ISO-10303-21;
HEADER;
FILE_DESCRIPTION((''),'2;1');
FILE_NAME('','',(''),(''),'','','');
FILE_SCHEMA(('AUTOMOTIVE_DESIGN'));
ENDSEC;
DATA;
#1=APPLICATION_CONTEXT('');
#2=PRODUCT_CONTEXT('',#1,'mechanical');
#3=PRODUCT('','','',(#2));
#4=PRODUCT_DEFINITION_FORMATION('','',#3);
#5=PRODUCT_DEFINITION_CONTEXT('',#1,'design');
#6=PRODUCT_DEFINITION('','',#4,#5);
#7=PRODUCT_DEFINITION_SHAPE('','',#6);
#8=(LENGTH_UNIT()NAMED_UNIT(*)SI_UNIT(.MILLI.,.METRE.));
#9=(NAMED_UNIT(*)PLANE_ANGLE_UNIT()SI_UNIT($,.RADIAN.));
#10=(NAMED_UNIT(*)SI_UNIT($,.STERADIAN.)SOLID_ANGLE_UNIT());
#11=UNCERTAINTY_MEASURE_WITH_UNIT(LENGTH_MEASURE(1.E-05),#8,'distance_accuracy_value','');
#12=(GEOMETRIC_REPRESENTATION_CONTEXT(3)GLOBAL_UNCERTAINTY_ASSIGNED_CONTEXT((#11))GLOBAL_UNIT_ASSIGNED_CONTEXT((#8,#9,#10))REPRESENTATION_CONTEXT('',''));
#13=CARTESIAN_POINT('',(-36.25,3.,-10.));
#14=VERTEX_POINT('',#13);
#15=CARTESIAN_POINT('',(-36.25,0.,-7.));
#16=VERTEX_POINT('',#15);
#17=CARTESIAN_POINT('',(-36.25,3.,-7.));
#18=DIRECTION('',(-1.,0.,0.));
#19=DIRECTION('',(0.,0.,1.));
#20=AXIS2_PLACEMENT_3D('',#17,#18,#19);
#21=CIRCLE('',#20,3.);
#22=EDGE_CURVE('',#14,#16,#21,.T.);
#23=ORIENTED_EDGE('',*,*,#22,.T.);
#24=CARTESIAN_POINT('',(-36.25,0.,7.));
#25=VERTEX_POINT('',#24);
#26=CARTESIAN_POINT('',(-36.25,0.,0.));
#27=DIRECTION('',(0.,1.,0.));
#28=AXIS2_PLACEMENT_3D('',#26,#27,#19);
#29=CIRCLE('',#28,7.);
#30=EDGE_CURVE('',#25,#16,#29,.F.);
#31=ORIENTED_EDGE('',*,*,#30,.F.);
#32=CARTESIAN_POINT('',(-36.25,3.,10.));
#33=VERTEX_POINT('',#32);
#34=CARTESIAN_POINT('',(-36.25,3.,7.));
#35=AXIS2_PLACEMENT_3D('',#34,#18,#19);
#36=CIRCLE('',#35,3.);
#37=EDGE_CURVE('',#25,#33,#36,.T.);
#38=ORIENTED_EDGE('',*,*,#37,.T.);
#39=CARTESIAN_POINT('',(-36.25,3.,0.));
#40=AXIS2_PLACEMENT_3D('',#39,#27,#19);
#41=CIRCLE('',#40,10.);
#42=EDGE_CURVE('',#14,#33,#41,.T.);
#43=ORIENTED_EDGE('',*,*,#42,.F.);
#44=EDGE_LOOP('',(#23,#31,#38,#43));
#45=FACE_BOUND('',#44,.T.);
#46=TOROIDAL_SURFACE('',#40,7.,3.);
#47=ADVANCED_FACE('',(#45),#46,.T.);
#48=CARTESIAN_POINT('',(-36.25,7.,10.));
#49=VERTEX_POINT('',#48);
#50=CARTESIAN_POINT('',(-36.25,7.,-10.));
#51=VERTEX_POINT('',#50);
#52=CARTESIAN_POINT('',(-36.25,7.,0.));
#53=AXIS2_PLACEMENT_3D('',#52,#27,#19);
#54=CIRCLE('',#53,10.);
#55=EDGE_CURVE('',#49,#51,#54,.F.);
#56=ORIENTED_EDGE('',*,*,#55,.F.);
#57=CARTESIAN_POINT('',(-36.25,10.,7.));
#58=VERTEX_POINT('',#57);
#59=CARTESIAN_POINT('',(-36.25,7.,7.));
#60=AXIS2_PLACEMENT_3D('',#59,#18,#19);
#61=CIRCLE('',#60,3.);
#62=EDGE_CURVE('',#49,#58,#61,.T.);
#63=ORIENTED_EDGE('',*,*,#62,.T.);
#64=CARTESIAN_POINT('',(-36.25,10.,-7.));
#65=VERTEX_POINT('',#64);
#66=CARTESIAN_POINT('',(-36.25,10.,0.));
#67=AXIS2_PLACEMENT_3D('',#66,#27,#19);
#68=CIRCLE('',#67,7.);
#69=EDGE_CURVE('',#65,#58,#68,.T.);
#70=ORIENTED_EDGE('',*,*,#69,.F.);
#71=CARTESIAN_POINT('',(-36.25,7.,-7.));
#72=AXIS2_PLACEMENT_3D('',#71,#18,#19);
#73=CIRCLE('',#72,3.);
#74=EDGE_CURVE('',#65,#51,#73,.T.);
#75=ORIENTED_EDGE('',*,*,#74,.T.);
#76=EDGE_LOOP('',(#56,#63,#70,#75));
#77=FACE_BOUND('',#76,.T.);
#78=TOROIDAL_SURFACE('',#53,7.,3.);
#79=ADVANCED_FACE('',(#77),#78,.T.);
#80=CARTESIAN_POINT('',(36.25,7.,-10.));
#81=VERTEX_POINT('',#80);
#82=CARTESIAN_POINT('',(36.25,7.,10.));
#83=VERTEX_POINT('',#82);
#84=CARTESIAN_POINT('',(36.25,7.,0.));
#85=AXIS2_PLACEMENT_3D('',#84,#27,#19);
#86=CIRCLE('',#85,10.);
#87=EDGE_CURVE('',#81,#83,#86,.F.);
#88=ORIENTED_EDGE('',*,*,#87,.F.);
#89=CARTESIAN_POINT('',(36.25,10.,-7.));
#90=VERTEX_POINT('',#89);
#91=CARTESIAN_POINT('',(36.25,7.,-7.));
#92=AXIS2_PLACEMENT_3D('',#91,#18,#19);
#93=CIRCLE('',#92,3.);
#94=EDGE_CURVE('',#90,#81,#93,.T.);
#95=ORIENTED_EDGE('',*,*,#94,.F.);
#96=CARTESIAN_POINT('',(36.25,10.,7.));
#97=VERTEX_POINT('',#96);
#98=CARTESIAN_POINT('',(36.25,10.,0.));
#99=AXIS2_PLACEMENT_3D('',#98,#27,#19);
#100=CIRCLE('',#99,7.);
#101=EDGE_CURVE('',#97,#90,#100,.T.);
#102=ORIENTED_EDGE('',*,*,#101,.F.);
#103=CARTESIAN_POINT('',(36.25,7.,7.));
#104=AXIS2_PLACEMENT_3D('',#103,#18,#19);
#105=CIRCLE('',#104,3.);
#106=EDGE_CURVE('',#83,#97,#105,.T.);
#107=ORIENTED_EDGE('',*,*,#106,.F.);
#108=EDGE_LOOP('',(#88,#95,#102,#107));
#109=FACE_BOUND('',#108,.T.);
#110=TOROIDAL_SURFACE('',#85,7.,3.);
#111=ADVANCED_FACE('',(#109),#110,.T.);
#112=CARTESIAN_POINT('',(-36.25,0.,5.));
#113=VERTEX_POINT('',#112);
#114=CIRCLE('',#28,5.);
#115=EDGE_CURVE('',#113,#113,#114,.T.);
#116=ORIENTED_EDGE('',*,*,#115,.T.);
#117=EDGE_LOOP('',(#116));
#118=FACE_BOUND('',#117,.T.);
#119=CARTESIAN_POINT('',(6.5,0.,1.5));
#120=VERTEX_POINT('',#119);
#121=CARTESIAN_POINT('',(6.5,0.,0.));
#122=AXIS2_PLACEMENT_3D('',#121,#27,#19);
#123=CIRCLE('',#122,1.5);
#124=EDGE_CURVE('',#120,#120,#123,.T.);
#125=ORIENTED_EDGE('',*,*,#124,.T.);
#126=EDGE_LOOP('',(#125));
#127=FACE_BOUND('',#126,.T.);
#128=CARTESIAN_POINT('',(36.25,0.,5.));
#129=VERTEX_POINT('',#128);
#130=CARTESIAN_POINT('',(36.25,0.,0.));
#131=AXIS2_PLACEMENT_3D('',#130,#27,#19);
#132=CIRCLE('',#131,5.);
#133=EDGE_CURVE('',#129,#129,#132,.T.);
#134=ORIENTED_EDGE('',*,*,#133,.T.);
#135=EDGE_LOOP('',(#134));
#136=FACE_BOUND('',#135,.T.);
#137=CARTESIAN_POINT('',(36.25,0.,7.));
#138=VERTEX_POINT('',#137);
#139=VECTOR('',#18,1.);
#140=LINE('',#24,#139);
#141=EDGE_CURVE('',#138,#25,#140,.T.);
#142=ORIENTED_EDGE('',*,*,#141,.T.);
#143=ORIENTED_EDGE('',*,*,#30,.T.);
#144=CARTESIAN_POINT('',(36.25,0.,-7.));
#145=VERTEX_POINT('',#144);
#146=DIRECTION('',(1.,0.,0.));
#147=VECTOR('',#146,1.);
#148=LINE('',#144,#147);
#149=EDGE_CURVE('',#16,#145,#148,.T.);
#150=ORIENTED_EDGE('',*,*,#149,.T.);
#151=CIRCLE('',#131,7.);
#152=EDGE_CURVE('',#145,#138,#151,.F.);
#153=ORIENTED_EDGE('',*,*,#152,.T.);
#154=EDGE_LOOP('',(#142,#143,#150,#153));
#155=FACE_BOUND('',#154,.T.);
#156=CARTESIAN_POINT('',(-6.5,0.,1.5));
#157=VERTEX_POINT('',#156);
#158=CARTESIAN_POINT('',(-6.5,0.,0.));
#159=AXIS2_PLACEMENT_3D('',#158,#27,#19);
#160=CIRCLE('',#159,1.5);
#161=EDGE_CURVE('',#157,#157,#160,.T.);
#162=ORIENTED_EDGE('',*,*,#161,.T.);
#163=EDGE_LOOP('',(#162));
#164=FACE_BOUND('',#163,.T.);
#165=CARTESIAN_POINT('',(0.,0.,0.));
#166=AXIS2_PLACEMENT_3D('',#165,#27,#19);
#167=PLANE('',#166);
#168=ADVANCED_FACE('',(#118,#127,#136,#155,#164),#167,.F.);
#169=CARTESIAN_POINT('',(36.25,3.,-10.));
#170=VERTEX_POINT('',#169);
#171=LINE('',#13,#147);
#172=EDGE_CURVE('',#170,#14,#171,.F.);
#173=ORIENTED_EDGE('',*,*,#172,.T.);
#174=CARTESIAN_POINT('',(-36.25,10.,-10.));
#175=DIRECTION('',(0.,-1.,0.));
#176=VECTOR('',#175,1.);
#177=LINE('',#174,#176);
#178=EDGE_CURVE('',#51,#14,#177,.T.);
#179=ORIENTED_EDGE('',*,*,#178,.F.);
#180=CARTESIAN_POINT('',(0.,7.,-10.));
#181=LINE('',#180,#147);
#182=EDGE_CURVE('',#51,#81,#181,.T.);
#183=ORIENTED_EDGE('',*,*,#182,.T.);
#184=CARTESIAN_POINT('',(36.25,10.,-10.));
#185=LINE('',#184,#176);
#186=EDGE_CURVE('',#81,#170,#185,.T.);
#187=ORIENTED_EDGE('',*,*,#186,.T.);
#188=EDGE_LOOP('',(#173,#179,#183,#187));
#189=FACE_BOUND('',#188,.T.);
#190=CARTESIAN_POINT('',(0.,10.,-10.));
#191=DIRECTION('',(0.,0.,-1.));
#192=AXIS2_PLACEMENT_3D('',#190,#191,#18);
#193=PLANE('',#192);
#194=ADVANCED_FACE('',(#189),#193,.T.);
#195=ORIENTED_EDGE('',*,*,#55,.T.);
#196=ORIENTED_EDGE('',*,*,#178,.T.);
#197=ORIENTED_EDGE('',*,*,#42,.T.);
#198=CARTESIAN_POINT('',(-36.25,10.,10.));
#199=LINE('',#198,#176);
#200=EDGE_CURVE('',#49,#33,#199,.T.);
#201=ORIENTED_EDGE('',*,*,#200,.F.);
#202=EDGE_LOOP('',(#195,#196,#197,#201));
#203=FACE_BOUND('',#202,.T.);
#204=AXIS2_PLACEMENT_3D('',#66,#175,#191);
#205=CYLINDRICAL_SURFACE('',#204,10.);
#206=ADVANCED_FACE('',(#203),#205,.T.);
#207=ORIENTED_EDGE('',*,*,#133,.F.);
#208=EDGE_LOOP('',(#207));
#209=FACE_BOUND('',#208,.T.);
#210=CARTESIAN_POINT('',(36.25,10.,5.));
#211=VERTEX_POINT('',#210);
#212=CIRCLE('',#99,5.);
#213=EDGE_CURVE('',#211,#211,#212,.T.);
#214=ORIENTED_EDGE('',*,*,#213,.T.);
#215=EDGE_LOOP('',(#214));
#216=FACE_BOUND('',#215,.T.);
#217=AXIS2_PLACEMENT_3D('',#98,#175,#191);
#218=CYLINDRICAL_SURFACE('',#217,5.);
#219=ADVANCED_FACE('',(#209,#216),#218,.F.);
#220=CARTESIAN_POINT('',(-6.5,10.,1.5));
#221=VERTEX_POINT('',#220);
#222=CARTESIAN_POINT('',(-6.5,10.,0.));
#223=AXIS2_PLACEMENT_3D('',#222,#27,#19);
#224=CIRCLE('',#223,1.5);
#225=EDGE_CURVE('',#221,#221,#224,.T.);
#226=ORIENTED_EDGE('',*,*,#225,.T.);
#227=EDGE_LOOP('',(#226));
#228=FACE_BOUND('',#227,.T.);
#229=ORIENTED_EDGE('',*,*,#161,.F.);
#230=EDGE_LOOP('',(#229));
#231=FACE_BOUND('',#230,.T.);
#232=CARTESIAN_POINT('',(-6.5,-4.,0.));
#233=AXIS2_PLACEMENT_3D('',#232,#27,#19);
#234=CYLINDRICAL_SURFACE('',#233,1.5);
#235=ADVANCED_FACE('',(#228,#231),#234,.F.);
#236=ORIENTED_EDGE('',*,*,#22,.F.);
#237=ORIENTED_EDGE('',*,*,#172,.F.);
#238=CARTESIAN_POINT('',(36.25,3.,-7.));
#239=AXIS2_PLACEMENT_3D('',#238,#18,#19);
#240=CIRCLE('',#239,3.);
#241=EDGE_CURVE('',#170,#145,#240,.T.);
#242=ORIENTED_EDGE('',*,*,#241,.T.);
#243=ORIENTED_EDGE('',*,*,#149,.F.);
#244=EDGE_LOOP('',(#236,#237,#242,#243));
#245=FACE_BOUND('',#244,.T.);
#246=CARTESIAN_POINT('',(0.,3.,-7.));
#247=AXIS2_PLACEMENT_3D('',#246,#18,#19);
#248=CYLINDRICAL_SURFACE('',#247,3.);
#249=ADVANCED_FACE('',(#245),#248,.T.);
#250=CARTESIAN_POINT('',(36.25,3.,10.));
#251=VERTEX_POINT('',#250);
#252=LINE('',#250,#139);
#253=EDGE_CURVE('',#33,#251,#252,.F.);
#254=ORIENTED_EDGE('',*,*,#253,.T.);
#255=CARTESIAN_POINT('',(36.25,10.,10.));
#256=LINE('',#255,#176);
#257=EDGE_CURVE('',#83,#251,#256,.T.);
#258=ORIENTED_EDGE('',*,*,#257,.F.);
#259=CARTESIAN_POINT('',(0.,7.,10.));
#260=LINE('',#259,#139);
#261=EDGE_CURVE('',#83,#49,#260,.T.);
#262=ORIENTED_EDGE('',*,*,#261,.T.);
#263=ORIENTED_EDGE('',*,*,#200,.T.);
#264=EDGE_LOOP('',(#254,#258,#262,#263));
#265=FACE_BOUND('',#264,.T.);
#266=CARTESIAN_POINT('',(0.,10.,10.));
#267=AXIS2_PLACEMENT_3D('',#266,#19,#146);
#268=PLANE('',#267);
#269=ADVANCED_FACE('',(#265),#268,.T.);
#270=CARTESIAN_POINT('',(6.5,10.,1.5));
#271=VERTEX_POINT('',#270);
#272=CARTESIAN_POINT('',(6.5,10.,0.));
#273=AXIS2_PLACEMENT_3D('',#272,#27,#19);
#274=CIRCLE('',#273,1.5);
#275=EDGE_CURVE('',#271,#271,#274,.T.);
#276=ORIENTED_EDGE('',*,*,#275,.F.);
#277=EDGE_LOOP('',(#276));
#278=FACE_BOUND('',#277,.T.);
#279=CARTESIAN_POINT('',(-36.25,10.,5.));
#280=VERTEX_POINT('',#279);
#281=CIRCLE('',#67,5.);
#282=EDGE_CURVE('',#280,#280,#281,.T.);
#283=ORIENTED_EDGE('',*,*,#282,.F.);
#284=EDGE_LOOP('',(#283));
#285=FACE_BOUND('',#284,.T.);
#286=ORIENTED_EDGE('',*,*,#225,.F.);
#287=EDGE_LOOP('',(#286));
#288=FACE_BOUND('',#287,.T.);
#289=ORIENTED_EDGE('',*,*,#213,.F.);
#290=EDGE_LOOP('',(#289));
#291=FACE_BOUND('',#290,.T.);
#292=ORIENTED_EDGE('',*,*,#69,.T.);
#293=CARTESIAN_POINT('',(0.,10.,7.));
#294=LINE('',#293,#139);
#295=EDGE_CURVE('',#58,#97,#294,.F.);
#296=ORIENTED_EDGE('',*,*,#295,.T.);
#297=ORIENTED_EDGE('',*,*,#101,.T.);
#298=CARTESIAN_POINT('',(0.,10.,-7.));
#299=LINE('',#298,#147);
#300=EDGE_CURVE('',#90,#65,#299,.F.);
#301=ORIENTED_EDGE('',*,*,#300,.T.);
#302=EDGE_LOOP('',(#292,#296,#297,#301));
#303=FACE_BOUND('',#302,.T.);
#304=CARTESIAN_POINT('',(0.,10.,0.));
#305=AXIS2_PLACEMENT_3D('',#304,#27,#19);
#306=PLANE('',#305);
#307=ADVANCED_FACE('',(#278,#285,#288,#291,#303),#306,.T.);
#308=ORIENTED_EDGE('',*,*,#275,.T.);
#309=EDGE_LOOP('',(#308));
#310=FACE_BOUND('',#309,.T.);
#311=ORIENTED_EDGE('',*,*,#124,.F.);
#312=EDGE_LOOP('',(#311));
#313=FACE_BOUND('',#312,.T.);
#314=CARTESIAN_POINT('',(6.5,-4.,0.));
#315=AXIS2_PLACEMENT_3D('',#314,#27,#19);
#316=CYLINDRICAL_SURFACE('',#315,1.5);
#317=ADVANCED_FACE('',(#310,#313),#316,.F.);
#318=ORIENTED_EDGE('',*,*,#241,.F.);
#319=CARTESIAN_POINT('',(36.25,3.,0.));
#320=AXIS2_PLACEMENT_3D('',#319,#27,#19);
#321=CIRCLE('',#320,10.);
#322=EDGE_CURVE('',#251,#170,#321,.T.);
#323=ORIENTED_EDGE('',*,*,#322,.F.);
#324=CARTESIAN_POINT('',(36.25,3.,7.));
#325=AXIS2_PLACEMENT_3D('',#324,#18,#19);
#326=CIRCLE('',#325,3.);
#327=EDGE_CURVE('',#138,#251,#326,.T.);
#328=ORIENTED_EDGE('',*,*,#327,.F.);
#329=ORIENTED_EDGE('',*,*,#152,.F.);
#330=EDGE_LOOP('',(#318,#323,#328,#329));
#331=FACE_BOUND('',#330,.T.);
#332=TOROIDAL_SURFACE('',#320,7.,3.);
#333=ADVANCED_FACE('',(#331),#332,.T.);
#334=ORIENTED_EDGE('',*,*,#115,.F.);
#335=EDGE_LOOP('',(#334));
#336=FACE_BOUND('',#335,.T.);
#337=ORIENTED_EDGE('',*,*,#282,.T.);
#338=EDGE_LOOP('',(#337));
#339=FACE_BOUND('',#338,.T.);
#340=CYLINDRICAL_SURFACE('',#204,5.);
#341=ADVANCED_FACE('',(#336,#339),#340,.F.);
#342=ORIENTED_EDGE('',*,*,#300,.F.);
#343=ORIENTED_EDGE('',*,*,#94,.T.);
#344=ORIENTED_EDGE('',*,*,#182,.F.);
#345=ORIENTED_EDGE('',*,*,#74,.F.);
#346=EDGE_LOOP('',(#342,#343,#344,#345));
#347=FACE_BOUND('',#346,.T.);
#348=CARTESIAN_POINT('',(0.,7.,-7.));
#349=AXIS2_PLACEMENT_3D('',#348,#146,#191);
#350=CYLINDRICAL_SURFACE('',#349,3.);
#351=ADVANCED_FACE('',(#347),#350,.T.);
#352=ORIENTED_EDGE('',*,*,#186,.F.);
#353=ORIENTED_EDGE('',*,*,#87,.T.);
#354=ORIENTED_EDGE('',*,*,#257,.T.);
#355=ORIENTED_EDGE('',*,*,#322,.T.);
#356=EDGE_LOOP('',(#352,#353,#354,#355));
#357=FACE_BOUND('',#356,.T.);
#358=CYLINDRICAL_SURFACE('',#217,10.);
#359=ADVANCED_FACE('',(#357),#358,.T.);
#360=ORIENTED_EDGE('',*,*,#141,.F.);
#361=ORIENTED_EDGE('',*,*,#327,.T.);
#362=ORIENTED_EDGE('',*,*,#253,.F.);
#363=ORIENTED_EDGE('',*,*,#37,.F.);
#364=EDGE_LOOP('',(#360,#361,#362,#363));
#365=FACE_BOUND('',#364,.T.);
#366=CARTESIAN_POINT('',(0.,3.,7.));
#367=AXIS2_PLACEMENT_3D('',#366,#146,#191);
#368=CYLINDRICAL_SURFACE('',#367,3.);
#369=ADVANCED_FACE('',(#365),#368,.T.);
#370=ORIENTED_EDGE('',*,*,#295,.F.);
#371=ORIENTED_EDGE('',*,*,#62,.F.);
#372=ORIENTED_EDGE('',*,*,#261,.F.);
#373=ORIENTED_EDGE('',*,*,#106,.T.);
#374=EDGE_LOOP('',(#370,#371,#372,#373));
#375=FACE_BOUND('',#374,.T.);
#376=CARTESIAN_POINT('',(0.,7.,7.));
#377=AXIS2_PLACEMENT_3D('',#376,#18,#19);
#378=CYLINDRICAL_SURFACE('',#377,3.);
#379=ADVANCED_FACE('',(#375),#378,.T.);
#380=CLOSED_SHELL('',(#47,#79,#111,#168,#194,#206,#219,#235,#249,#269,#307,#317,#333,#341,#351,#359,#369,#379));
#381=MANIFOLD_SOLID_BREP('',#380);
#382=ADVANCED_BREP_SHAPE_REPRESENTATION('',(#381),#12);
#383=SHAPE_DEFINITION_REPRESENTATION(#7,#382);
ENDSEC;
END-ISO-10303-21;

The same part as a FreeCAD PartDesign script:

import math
import FreeCAD as App
import Part
import Sketcher

V = App.Vector
Q = App.Units.Quantity


def edges_at(feature, points):
    """Names of the edges that pass closest to the given points."""
    edges = feature.Shape.Edges
    near = lambda p: min(range(len(edges)), key=lambda i: edges[i].distToShape(Part.Vertex(*p))[0])
    return sorted({f"Edge{near(p) + 1}" for p in points})

doc = App.newDocument("Part")
body = doc.addObject("PartDesign::Body", "Body")

# Sketch on XZ plane
sketch1 = body.newObject("Sketcher::SketchObject", "Sketch")
sketch1.AttachmentSupport = (doc.getObject("XZ_Plane"), [""])
sketch1.MapMode = "FlatFace"
sketch1.addGeometry([
    Part.LineSegment(V(36, -10, 0), V(-36, -10, 0)),  # 0
    Part.ArcOfCircle(Part.Circle(V(-36, 0, 0), V(0, 0, 1), 10), math.radians(90), math.radians(270)),  # 1
    Part.LineSegment(V(-36, 10, 0), V(36, 10, 0)),  # 2
    Part.ArcOfCircle(Part.Circle(V(36, 0, 0), V(0, 0, 1), 10), math.radians(-90), math.radians(90)),  # 3
    Part.Circle(V(-36, 0, 0), V(0, 0, 1), 5),  # 4
    Part.ArcOfCircle(Part.Circle(V(0, 0, 0), V(0, 0, 1), 5), math.radians(-90), math.radians(0)),  # 5
    Part.ArcOfCircle(Part.Circle(V(0, 0, 0), V(0, 0, 1), 5), math.radians(0), math.radians(90)),  # 6
    Part.ArcOfCircle(Part.Circle(V(0, 0, 0), V(0, 0, 1), 5), math.radians(90), math.radians(270)),  # 7
    Part.Circle(V(36, 0, 0), V(0, 0, 1), 5),  # 8
], False)
sketch1.addConstraint([
    Sketcher.Constraint("Tangent", 0, 2, 1, 2),
    Sketcher.Constraint("Tangent", 1, 1, 2, 1),
    Sketcher.Constraint("Tangent", 2, 2, 3, 2),
    Sketcher.Constraint("Tangent", 3, 1, 0, 1),
    Sketcher.Constraint("Tangent", 5, 2, 6, 1),
    Sketcher.Constraint("Tangent", 6, 2, 7, 1),
    Sketcher.Constraint("Tangent", 7, 2, 5, 1),
    Sketcher.Constraint("Horizontal", 0),
    Sketcher.Constraint("Horizontal", 2),
    Sketcher.Constraint("Coincident", 5, 3, -1, 1),
    Sketcher.Constraint("Coincident", 4, 3, 1, 3),
    Sketcher.Constraint("Coincident", 8, 3, 3, 3),
    Sketcher.Constraint("Equal", 4, 5),
    Sketcher.Constraint("Equal", 7, 8),
    Sketcher.Constraint("Symmetric", 1, 3, 3, 3, -1, 1),
    Sketcher.Constraint("PointOnObject", 5, 2, -1),
    Sketcher.Constraint("PointOnObject", 6, 2, -2),
    Sketcher.Constraint("PointOnObject", 7, 2, -2),
    Sketcher.Constraint("Diameter", 4, Q("10 mm")),
    Sketcher.Constraint("Radius", 1, Q("10 mm")),
    Sketcher.Constraint("DistanceX", 0, 2, 0, 1, Q("72.5 mm")),
])
pad1 = body.newObject("PartDesign::Pad", "Pad")
pad1.Profile = sketch1
pad1.Length = 10
pad1.Reversed = True
doc.recompute()

fillet = body.newObject("PartDesign::Fillet", "Fillet")
fillet.Base = (pad1, edges_at(pad1, [
    (46.25, 0, 0),
    (0, 0, 10),
    (0, 10, 10),
    (46.25, 10, 0),
    (0, 10, -10),
    (-46.25, 10, 0),
    (-46.25, 0, 0),
    (0, 0, -10),
]))
fillet.Radius = 3

# Sketch on XZ plane
sketch2 = body.newObject("Sketcher::SketchObject", "Sketch001")
sketch2.AttachmentSupport = (doc.getObject("XZ_Plane"), [""])
sketch2.MapMode = "FlatFace"
sketch2.AttachmentOffset = App.Placement(V(0, 0, -10), App.Rotation())
sketch2.addGeometry(Part.Circle(V(0, 0, 0), V(0, 0, 1), 5), False)
sketch2.addConstraint([
    Sketcher.Constraint("Coincident", 0, 3, -1, 1),
    Sketcher.Constraint("Diameter", 0, Q("10 mm")),
])
pad2 = body.newObject("PartDesign::Pad", "Pad001")
pad2.Profile = sketch2
pad2.Length = 10

# Sketch on XZ plane
sketch3 = body.newObject("Sketcher::SketchObject", "Sketch002")
sketch3.AttachmentSupport = (doc.getObject("XZ_Plane"), [""])
sketch3.MapMode = "FlatFace"
sketch3.AttachmentOffset = App.Placement(V(0, 0, -10), App.Rotation())
sketch3.addGeometry([
    Part.Circle(V(-6.5, 0, 0), V(0, 0, 1), 1.5),
    Part.Circle(V(6.5, 0, 0), V(0, 0, 1), 1.5),
], False)
sketch3.addConstraint([
    Sketcher.Constraint("Equal", 0, 1),
    Sketcher.Constraint("Symmetric", 0, 3, 1, 3, -1, 1),
    Sketcher.Constraint("PointOnObject", 0, 3, -1),
    Sketcher.Constraint("Diameter", 0, Q("3 mm")),
    Sketcher.Constraint("DistanceX", 0, 3, 1, 3, Q("13 mm")),
])
pocket1 = body.newObject("PartDesign::Pocket", "Pocket")
pocket1.Profile = sketch3
pocket1.Length = 14
pocket1.Reversed = True

doc.recompute()
